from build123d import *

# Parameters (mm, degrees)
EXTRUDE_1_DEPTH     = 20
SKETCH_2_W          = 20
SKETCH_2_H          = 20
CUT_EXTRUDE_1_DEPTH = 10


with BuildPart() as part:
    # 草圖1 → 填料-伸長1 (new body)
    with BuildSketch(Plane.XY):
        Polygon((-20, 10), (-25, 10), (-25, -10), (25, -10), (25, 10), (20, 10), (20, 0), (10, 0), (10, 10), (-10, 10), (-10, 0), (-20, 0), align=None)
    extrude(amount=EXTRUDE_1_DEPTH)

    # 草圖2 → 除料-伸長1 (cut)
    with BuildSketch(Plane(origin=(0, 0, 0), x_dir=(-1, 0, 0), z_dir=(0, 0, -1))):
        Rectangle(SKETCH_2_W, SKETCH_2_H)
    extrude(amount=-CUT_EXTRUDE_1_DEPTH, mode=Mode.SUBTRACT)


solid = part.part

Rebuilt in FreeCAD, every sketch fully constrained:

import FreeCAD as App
import Part
import Sketcher

V = App.Vector
Q = App.Units.Quantity


def add_polygon(sketch, points):
    """Adds a closed chain of lines whose ends are joined by coincident constraints."""
    first, n = sketch.GeometryCount, len(points)
    for a, b in zip(points, points[1:] + points[:1]):
        sketch.addGeometry(Part.LineSegment(App.Vector(*a, 0), App.Vector(*b, 0)), False)
    for i in range(n):
        sketch.addConstraint(Sketcher.Constraint("Coincident", first + i, 2, first + (i + 1) % n, 1))

doc = App.newDocument("Part")
body = doc.addObject("PartDesign::Body", "Body")

# Sketch on XY plane
sketch1 = doc.addObject("Sketcher::SketchObject", "Sketch")
body.addObject(sketch1)
sketch1.AttachmentSupport = (doc.XY_Plane, [""])
sketch1.MapMode = "FlatFace"
add_polygon(sketch1, [(-20, 10), (-25, 10), (-25, -10), (25, -10), (25, 10), (20, 10), (20, 0), (10, 0), (10, 10), (-10, 10), (-10, 0), (-20, 0)])  # lines 0-11
sketch1.addConstraint(Sketcher.Constraint("Horizontal", 0))
sketch1.addConstraint(Sketcher.Constraint("Vertical", 1))
sketch1.addConstraint(Sketcher.Constraint("Horizontal", 2))
sketch1.addConstraint(Sketcher.Constraint("Vertical", 3))
sketch1.addConstraint(Sketcher.Constraint("Horizontal", 4))
sketch1.addConstraint(Sketcher.Constraint("Vertical", 5))
sketch1.addConstraint(Sketcher.Constraint("Horizontal", 6))
sketch1.addConstraint(Sketcher.Constraint("Vertical", 7))
sketch1.addConstraint(Sketcher.Constraint("Horizontal", 8))
sketch1.addConstraint(Sketcher.Constraint("Vertical", 9))
sketch1.addConstraint(Sketcher.Constraint("Horizontal", 10))
sketch1.addConstraint(Sketcher.Constraint("Vertical", 11))
sketch1.addConstraint(Sketcher.Constraint("Symmetric", 0, 2, 2, 2, -1, 1))
sketch1.addConstraint(Sketcher.Constraint("Symmetric", 6, 2, 9, 2, -1, 1))
sketch1.addConstraint(Sketcher.Constraint("Symmetric", 5, 2, 10, 2, -2))
sketch1.addConstraint(Sketcher.Constraint("Horizontal", 0, 2, 3, 2))
sketch1.addConstraint(Sketcher.Constraint("Horizontal", 4, 2, 7, 2))
sketch1.addConstraint(Sketcher.Constraint("Equal", 8, 1))
sketch1.addConstraint(Sketcher.Constraint("Equal", 10, 5))
sketch1.addConstraint(Sketcher.Constraint("DistanceX", 0, 2, 0, 1, Q("5 mm")))
sketch1.addConstraint(Sketcher.Constraint("DistanceX", 2, 1, 2, 2, Q("50 mm")))
pad1 = doc.addObject("PartDesign::Pad", "Pad")
body.addObject(pad1)
pad1.Profile = sketch1
pad1.Length = 20

# Sketch on XY plane
sketch2 = doc.addObject("Sketcher::SketchObject", "Sketch001")
body.addObject(sketch2)
sketch2.AttachmentSupport = (doc.XY_Plane, [""])
sketch2.MapMode = "FlatFace"
add_polygon(sketch2, [(10, 10), (10, -10), (-10, -10), (-10, 10)])  # lines 0-3
sketch2.addConstraint(Sketcher.Constraint("Vertical", 0))
sketch2.addConstraint(Sketcher.Constraint("Horizontal", 1))
sketch2.addConstraint(Sketcher.Constraint("Vertical", 2))
sketch2.addConstraint(Sketcher.Constraint("Horizontal", 3))
sketch2.addConstraint(Sketcher.Constraint("Symmetric", 0, 2, 2, 2, -1, 1))
sketch2.addConstraint(Sketcher.Constraint("Equal", 3, 0))
sketch2.addConstraint(Sketcher.Constraint("DistanceX", 1, 2, 1, 1, Q("20 mm")))
pocket1 = doc.addObject("PartDesign::Pocket", "Pocket")
body.addObject(pocket1)
pocket1.Profile = sketch2
pocket1.Length = 10
pocket1.Reversed = True

doc.recompute()
